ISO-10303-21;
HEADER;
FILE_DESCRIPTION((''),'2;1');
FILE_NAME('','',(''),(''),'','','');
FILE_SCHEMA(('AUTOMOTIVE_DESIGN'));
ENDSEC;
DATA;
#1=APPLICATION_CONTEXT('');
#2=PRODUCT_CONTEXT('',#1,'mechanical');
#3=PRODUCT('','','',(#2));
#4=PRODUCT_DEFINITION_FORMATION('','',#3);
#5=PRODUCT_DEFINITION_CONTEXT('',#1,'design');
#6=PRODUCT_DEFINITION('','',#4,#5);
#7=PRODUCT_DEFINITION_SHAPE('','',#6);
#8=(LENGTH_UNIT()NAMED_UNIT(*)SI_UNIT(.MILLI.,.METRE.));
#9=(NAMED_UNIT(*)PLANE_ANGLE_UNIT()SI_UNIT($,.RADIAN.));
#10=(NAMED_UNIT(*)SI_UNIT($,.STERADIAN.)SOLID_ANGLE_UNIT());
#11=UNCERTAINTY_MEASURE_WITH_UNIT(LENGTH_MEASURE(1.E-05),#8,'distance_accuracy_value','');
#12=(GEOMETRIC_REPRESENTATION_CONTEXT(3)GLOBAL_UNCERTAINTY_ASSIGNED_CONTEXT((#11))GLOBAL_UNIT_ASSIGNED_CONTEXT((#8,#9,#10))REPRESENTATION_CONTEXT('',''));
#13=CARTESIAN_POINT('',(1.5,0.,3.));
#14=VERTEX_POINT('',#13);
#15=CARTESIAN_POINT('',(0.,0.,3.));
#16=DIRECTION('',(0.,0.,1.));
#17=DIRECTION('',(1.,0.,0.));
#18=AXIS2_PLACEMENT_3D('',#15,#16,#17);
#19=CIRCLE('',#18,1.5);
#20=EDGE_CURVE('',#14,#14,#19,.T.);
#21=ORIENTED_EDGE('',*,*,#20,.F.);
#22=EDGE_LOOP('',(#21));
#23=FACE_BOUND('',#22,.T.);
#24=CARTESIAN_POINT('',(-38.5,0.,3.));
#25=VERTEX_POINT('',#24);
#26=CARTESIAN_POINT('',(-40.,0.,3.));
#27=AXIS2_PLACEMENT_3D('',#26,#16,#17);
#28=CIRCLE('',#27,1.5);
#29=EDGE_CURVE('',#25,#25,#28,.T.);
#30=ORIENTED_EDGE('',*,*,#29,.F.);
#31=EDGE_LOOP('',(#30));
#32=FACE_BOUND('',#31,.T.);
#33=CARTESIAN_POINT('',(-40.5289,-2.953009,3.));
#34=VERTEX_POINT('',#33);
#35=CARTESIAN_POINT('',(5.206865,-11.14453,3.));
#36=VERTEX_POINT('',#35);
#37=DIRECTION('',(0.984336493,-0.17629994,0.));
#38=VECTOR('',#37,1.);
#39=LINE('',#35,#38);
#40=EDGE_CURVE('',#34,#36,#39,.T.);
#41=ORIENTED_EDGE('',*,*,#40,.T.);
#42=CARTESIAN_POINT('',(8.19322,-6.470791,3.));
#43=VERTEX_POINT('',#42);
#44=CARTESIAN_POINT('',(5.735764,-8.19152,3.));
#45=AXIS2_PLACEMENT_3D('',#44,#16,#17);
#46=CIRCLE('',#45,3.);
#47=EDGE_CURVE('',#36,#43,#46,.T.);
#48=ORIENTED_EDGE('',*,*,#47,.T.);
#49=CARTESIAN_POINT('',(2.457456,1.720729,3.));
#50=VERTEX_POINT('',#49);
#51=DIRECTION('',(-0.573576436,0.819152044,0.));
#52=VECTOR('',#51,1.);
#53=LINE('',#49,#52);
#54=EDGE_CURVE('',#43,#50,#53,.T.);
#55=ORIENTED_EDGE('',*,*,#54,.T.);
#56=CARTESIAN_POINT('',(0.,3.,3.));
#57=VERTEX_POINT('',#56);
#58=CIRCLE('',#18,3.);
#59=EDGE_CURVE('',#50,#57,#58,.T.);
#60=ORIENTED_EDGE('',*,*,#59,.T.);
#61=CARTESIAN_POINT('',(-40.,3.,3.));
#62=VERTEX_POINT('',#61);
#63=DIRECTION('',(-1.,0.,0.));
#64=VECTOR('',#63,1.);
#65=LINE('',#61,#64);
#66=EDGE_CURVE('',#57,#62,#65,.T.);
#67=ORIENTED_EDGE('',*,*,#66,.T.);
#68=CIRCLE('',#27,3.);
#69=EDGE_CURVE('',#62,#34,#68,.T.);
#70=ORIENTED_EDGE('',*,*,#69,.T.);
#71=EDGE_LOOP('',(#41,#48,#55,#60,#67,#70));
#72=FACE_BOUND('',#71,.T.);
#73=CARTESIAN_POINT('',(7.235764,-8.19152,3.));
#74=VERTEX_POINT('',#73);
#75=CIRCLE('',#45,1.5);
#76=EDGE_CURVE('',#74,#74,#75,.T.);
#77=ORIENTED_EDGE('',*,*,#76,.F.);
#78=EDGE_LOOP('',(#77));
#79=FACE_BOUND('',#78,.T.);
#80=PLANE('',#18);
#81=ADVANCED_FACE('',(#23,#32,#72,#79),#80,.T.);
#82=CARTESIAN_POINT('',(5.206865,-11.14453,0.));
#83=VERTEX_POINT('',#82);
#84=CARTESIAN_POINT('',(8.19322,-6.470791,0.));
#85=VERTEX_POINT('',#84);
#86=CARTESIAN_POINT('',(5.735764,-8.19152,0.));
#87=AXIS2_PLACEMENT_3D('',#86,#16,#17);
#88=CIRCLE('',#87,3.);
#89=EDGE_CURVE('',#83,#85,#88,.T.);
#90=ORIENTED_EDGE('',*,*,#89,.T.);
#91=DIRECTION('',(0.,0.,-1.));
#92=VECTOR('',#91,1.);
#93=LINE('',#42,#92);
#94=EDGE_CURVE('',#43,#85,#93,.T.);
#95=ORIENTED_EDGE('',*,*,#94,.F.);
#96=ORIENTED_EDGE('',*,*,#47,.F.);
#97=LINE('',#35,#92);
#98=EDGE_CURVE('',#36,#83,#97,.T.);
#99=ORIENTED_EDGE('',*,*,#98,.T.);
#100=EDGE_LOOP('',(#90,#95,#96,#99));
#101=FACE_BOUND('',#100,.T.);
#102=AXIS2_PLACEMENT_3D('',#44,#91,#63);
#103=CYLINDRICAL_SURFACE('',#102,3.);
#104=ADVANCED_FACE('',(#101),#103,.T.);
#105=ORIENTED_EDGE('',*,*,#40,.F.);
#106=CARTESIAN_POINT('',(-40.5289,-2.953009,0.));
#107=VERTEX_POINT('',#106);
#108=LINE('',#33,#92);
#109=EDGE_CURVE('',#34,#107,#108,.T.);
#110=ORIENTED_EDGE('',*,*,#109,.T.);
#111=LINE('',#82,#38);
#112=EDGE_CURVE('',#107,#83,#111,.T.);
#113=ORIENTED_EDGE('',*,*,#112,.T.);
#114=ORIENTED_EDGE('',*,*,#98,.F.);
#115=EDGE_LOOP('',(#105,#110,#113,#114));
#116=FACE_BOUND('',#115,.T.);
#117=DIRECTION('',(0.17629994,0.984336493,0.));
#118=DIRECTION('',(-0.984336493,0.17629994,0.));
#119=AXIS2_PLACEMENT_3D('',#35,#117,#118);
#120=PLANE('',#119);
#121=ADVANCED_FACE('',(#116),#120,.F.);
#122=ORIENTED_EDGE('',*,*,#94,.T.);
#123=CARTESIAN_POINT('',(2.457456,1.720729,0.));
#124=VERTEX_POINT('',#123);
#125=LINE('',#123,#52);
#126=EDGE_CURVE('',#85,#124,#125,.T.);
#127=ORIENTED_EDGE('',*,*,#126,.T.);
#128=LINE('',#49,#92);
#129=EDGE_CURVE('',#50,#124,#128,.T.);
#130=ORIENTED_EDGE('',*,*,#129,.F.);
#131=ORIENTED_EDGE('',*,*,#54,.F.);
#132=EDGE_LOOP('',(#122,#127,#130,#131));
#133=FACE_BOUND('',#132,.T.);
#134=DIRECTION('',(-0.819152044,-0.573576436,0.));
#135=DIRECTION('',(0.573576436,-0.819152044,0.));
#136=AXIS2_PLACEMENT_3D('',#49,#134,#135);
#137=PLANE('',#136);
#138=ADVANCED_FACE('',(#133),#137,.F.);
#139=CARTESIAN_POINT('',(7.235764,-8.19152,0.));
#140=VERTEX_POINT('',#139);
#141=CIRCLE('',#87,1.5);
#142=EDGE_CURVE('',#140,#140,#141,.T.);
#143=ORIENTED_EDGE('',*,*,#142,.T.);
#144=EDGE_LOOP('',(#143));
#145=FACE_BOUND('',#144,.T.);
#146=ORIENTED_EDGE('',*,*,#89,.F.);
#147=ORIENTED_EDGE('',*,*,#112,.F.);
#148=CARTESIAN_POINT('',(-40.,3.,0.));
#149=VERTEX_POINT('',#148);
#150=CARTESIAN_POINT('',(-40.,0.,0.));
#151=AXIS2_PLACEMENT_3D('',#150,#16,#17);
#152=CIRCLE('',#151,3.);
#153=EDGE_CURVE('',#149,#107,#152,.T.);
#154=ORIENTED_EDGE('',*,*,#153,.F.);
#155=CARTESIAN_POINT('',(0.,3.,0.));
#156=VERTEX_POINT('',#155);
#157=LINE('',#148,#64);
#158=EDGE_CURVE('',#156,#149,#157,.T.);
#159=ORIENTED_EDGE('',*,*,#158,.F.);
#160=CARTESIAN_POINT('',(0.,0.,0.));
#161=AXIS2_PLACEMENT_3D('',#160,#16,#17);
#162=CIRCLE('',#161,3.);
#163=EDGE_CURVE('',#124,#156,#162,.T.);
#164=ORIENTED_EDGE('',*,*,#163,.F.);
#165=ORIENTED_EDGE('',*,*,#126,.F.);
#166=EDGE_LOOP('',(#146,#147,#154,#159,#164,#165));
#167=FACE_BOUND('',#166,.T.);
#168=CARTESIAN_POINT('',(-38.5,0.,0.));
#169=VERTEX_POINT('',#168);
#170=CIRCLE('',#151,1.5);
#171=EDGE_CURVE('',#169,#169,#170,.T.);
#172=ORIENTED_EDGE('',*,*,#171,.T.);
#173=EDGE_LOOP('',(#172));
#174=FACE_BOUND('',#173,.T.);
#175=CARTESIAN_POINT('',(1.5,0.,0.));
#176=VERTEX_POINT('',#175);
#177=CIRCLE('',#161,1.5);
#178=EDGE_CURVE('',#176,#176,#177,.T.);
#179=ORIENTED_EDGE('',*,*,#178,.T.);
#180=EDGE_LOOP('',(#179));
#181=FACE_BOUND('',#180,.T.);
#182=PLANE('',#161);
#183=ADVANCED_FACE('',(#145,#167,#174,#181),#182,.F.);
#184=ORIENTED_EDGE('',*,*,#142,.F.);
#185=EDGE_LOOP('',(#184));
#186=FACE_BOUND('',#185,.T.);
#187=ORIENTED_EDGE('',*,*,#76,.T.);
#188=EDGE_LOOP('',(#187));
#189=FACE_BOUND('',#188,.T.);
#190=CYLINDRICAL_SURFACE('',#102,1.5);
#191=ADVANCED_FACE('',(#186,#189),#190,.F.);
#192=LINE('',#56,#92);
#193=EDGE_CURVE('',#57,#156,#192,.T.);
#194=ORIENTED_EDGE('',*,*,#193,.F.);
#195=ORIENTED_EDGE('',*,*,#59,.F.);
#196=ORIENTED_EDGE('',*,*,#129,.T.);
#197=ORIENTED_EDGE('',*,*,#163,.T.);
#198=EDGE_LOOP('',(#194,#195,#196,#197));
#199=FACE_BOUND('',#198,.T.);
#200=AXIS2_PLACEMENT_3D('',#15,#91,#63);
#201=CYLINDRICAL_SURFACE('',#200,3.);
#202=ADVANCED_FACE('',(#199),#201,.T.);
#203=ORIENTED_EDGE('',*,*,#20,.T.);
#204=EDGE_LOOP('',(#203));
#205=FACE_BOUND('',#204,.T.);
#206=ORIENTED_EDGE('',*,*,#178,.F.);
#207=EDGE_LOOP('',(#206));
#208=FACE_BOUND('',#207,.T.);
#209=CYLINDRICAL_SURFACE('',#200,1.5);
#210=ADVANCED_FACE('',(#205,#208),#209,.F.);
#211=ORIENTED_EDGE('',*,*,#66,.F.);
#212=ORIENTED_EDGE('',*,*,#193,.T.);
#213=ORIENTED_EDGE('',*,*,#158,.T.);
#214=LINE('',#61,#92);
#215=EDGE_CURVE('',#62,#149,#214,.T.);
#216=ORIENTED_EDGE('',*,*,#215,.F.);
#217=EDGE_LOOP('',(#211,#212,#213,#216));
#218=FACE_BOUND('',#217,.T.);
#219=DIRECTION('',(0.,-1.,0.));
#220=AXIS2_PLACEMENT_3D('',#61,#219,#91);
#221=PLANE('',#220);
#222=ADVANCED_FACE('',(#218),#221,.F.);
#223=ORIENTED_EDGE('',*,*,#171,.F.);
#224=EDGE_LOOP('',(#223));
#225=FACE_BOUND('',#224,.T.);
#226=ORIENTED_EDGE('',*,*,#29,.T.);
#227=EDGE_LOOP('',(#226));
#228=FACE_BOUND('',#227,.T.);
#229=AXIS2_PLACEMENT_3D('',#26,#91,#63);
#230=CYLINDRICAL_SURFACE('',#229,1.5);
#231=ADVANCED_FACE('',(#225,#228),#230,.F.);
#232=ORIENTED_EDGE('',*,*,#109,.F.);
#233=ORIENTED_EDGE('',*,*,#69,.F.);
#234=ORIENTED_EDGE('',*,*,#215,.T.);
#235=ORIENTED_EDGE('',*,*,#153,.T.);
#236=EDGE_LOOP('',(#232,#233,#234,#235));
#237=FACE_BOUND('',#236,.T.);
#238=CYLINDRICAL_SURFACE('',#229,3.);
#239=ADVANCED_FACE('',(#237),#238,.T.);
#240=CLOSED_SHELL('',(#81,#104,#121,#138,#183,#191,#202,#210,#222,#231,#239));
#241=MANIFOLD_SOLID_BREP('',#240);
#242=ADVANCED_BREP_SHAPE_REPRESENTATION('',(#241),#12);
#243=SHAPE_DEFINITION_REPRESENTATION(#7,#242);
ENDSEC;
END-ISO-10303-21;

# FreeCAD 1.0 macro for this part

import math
import FreeCAD as App
import Part
import Sketcher
Q = App.Units.Quantity

doc = App.newDocument("Part")
body = doc.addObject("PartDesign::Body", "Body")

sketch1 = body.newObject("Sketcher::SketchObject", "Sketch")
sketch1.AttachmentSupport = (doc.getObject("XY_Plane"), [""])
sketch1.MapMode = "FlatFace"
sketch1.addGeometry([
    Part.LineSegment(App.Vector(0, 3, 0), App.Vector(-40, 3, 0)),
    Part.ArcOfCircle(Part.Circle(App.Vector(-40, 0, 0), App.Vector(0, 0, 1), 3), math.radians(90), math.radians(260)),
    Part.LineSegment(App.Vector(-40.5, -3, 0), App.Vector(5.2, -11.1, 0)),
    Part.ArcOfCircle(Part.Circle(App.Vector(5.7, -8.2, 0), App.Vector(0, 0, 1), 3), math.radians(-100), math.radians(35)),
    Part.LineSegment(App.Vector(8.2, -6.5, 0), App.Vector(2.5, 1.7, 0)),
    Part.ArcOfCircle(Part.Circle(App.Vector(0, 0, 0), App.Vector(0, 0, 1), 3), math.radians(35), math.radians(90)),
    Part.Circle(App.Vector(5.7, -8.2, 0), App.Vector(0, 0, 1), 1.5),
    Part.Circle(App.Vector(0, 0, 0), App.Vector(0, 0, 1), 1.5),
    Part.Circle(App.Vector(-40, 0, 0), App.Vector(0, 0, 1), 1.5),
], False)
sketch1.addConstraint([
    Sketcher.Constraint("Tangent", 0, 2, 1, 1),
    Sketcher.Constraint("Tangent", 1, 2, 2, 1),
    Sketcher.Constraint("Tangent", 2, 2, 3, 1),
    Sketcher.Constraint("Tangent", 3, 2, 4, 1),
    Sketcher.Constraint("Tangent", 4, 2, 5, 1),
    Sketcher.Constraint("Tangent", 5, 2, 0, 1),
    Sketcher.Constraint("Horizontal", 0),
    Sketcher.Constraint("Coincident", 5, 3, -1, 1),
    Sketcher.Constraint("Coincident", 7, 3, -1, 1),
    Sketcher.Constraint("Coincident", 6, 3, 3, 3),
    Sketcher.Constraint("Coincident", 8, 3, 1, 3),
    Sketcher.Constraint("Equal", 1, 3),
    Sketcher.Constraint("Equal", 3, 5),
    Sketcher.Constraint("Equal", 6, 7),
    Sketcher.Constraint("Equal", 7, 8),
    Sketcher.Constraint("Diameter", 6, 3.0),
    Sketcher.Constraint("Radius", 1, 3.0),
    Sketcher.Constraint("DistanceX", 0, 2, 0, 1, 40.0),
    Sketcher.Constraint("Angle", 4, Q("125 deg")),
    Sketcher.Constraint("Distance", 4, 10.0),
])
pad1 = body.newObject("PartDesign::Pad", "Pad")
pad1.Profile = sketch1
pad1.Length = 3

doc.recompute()
